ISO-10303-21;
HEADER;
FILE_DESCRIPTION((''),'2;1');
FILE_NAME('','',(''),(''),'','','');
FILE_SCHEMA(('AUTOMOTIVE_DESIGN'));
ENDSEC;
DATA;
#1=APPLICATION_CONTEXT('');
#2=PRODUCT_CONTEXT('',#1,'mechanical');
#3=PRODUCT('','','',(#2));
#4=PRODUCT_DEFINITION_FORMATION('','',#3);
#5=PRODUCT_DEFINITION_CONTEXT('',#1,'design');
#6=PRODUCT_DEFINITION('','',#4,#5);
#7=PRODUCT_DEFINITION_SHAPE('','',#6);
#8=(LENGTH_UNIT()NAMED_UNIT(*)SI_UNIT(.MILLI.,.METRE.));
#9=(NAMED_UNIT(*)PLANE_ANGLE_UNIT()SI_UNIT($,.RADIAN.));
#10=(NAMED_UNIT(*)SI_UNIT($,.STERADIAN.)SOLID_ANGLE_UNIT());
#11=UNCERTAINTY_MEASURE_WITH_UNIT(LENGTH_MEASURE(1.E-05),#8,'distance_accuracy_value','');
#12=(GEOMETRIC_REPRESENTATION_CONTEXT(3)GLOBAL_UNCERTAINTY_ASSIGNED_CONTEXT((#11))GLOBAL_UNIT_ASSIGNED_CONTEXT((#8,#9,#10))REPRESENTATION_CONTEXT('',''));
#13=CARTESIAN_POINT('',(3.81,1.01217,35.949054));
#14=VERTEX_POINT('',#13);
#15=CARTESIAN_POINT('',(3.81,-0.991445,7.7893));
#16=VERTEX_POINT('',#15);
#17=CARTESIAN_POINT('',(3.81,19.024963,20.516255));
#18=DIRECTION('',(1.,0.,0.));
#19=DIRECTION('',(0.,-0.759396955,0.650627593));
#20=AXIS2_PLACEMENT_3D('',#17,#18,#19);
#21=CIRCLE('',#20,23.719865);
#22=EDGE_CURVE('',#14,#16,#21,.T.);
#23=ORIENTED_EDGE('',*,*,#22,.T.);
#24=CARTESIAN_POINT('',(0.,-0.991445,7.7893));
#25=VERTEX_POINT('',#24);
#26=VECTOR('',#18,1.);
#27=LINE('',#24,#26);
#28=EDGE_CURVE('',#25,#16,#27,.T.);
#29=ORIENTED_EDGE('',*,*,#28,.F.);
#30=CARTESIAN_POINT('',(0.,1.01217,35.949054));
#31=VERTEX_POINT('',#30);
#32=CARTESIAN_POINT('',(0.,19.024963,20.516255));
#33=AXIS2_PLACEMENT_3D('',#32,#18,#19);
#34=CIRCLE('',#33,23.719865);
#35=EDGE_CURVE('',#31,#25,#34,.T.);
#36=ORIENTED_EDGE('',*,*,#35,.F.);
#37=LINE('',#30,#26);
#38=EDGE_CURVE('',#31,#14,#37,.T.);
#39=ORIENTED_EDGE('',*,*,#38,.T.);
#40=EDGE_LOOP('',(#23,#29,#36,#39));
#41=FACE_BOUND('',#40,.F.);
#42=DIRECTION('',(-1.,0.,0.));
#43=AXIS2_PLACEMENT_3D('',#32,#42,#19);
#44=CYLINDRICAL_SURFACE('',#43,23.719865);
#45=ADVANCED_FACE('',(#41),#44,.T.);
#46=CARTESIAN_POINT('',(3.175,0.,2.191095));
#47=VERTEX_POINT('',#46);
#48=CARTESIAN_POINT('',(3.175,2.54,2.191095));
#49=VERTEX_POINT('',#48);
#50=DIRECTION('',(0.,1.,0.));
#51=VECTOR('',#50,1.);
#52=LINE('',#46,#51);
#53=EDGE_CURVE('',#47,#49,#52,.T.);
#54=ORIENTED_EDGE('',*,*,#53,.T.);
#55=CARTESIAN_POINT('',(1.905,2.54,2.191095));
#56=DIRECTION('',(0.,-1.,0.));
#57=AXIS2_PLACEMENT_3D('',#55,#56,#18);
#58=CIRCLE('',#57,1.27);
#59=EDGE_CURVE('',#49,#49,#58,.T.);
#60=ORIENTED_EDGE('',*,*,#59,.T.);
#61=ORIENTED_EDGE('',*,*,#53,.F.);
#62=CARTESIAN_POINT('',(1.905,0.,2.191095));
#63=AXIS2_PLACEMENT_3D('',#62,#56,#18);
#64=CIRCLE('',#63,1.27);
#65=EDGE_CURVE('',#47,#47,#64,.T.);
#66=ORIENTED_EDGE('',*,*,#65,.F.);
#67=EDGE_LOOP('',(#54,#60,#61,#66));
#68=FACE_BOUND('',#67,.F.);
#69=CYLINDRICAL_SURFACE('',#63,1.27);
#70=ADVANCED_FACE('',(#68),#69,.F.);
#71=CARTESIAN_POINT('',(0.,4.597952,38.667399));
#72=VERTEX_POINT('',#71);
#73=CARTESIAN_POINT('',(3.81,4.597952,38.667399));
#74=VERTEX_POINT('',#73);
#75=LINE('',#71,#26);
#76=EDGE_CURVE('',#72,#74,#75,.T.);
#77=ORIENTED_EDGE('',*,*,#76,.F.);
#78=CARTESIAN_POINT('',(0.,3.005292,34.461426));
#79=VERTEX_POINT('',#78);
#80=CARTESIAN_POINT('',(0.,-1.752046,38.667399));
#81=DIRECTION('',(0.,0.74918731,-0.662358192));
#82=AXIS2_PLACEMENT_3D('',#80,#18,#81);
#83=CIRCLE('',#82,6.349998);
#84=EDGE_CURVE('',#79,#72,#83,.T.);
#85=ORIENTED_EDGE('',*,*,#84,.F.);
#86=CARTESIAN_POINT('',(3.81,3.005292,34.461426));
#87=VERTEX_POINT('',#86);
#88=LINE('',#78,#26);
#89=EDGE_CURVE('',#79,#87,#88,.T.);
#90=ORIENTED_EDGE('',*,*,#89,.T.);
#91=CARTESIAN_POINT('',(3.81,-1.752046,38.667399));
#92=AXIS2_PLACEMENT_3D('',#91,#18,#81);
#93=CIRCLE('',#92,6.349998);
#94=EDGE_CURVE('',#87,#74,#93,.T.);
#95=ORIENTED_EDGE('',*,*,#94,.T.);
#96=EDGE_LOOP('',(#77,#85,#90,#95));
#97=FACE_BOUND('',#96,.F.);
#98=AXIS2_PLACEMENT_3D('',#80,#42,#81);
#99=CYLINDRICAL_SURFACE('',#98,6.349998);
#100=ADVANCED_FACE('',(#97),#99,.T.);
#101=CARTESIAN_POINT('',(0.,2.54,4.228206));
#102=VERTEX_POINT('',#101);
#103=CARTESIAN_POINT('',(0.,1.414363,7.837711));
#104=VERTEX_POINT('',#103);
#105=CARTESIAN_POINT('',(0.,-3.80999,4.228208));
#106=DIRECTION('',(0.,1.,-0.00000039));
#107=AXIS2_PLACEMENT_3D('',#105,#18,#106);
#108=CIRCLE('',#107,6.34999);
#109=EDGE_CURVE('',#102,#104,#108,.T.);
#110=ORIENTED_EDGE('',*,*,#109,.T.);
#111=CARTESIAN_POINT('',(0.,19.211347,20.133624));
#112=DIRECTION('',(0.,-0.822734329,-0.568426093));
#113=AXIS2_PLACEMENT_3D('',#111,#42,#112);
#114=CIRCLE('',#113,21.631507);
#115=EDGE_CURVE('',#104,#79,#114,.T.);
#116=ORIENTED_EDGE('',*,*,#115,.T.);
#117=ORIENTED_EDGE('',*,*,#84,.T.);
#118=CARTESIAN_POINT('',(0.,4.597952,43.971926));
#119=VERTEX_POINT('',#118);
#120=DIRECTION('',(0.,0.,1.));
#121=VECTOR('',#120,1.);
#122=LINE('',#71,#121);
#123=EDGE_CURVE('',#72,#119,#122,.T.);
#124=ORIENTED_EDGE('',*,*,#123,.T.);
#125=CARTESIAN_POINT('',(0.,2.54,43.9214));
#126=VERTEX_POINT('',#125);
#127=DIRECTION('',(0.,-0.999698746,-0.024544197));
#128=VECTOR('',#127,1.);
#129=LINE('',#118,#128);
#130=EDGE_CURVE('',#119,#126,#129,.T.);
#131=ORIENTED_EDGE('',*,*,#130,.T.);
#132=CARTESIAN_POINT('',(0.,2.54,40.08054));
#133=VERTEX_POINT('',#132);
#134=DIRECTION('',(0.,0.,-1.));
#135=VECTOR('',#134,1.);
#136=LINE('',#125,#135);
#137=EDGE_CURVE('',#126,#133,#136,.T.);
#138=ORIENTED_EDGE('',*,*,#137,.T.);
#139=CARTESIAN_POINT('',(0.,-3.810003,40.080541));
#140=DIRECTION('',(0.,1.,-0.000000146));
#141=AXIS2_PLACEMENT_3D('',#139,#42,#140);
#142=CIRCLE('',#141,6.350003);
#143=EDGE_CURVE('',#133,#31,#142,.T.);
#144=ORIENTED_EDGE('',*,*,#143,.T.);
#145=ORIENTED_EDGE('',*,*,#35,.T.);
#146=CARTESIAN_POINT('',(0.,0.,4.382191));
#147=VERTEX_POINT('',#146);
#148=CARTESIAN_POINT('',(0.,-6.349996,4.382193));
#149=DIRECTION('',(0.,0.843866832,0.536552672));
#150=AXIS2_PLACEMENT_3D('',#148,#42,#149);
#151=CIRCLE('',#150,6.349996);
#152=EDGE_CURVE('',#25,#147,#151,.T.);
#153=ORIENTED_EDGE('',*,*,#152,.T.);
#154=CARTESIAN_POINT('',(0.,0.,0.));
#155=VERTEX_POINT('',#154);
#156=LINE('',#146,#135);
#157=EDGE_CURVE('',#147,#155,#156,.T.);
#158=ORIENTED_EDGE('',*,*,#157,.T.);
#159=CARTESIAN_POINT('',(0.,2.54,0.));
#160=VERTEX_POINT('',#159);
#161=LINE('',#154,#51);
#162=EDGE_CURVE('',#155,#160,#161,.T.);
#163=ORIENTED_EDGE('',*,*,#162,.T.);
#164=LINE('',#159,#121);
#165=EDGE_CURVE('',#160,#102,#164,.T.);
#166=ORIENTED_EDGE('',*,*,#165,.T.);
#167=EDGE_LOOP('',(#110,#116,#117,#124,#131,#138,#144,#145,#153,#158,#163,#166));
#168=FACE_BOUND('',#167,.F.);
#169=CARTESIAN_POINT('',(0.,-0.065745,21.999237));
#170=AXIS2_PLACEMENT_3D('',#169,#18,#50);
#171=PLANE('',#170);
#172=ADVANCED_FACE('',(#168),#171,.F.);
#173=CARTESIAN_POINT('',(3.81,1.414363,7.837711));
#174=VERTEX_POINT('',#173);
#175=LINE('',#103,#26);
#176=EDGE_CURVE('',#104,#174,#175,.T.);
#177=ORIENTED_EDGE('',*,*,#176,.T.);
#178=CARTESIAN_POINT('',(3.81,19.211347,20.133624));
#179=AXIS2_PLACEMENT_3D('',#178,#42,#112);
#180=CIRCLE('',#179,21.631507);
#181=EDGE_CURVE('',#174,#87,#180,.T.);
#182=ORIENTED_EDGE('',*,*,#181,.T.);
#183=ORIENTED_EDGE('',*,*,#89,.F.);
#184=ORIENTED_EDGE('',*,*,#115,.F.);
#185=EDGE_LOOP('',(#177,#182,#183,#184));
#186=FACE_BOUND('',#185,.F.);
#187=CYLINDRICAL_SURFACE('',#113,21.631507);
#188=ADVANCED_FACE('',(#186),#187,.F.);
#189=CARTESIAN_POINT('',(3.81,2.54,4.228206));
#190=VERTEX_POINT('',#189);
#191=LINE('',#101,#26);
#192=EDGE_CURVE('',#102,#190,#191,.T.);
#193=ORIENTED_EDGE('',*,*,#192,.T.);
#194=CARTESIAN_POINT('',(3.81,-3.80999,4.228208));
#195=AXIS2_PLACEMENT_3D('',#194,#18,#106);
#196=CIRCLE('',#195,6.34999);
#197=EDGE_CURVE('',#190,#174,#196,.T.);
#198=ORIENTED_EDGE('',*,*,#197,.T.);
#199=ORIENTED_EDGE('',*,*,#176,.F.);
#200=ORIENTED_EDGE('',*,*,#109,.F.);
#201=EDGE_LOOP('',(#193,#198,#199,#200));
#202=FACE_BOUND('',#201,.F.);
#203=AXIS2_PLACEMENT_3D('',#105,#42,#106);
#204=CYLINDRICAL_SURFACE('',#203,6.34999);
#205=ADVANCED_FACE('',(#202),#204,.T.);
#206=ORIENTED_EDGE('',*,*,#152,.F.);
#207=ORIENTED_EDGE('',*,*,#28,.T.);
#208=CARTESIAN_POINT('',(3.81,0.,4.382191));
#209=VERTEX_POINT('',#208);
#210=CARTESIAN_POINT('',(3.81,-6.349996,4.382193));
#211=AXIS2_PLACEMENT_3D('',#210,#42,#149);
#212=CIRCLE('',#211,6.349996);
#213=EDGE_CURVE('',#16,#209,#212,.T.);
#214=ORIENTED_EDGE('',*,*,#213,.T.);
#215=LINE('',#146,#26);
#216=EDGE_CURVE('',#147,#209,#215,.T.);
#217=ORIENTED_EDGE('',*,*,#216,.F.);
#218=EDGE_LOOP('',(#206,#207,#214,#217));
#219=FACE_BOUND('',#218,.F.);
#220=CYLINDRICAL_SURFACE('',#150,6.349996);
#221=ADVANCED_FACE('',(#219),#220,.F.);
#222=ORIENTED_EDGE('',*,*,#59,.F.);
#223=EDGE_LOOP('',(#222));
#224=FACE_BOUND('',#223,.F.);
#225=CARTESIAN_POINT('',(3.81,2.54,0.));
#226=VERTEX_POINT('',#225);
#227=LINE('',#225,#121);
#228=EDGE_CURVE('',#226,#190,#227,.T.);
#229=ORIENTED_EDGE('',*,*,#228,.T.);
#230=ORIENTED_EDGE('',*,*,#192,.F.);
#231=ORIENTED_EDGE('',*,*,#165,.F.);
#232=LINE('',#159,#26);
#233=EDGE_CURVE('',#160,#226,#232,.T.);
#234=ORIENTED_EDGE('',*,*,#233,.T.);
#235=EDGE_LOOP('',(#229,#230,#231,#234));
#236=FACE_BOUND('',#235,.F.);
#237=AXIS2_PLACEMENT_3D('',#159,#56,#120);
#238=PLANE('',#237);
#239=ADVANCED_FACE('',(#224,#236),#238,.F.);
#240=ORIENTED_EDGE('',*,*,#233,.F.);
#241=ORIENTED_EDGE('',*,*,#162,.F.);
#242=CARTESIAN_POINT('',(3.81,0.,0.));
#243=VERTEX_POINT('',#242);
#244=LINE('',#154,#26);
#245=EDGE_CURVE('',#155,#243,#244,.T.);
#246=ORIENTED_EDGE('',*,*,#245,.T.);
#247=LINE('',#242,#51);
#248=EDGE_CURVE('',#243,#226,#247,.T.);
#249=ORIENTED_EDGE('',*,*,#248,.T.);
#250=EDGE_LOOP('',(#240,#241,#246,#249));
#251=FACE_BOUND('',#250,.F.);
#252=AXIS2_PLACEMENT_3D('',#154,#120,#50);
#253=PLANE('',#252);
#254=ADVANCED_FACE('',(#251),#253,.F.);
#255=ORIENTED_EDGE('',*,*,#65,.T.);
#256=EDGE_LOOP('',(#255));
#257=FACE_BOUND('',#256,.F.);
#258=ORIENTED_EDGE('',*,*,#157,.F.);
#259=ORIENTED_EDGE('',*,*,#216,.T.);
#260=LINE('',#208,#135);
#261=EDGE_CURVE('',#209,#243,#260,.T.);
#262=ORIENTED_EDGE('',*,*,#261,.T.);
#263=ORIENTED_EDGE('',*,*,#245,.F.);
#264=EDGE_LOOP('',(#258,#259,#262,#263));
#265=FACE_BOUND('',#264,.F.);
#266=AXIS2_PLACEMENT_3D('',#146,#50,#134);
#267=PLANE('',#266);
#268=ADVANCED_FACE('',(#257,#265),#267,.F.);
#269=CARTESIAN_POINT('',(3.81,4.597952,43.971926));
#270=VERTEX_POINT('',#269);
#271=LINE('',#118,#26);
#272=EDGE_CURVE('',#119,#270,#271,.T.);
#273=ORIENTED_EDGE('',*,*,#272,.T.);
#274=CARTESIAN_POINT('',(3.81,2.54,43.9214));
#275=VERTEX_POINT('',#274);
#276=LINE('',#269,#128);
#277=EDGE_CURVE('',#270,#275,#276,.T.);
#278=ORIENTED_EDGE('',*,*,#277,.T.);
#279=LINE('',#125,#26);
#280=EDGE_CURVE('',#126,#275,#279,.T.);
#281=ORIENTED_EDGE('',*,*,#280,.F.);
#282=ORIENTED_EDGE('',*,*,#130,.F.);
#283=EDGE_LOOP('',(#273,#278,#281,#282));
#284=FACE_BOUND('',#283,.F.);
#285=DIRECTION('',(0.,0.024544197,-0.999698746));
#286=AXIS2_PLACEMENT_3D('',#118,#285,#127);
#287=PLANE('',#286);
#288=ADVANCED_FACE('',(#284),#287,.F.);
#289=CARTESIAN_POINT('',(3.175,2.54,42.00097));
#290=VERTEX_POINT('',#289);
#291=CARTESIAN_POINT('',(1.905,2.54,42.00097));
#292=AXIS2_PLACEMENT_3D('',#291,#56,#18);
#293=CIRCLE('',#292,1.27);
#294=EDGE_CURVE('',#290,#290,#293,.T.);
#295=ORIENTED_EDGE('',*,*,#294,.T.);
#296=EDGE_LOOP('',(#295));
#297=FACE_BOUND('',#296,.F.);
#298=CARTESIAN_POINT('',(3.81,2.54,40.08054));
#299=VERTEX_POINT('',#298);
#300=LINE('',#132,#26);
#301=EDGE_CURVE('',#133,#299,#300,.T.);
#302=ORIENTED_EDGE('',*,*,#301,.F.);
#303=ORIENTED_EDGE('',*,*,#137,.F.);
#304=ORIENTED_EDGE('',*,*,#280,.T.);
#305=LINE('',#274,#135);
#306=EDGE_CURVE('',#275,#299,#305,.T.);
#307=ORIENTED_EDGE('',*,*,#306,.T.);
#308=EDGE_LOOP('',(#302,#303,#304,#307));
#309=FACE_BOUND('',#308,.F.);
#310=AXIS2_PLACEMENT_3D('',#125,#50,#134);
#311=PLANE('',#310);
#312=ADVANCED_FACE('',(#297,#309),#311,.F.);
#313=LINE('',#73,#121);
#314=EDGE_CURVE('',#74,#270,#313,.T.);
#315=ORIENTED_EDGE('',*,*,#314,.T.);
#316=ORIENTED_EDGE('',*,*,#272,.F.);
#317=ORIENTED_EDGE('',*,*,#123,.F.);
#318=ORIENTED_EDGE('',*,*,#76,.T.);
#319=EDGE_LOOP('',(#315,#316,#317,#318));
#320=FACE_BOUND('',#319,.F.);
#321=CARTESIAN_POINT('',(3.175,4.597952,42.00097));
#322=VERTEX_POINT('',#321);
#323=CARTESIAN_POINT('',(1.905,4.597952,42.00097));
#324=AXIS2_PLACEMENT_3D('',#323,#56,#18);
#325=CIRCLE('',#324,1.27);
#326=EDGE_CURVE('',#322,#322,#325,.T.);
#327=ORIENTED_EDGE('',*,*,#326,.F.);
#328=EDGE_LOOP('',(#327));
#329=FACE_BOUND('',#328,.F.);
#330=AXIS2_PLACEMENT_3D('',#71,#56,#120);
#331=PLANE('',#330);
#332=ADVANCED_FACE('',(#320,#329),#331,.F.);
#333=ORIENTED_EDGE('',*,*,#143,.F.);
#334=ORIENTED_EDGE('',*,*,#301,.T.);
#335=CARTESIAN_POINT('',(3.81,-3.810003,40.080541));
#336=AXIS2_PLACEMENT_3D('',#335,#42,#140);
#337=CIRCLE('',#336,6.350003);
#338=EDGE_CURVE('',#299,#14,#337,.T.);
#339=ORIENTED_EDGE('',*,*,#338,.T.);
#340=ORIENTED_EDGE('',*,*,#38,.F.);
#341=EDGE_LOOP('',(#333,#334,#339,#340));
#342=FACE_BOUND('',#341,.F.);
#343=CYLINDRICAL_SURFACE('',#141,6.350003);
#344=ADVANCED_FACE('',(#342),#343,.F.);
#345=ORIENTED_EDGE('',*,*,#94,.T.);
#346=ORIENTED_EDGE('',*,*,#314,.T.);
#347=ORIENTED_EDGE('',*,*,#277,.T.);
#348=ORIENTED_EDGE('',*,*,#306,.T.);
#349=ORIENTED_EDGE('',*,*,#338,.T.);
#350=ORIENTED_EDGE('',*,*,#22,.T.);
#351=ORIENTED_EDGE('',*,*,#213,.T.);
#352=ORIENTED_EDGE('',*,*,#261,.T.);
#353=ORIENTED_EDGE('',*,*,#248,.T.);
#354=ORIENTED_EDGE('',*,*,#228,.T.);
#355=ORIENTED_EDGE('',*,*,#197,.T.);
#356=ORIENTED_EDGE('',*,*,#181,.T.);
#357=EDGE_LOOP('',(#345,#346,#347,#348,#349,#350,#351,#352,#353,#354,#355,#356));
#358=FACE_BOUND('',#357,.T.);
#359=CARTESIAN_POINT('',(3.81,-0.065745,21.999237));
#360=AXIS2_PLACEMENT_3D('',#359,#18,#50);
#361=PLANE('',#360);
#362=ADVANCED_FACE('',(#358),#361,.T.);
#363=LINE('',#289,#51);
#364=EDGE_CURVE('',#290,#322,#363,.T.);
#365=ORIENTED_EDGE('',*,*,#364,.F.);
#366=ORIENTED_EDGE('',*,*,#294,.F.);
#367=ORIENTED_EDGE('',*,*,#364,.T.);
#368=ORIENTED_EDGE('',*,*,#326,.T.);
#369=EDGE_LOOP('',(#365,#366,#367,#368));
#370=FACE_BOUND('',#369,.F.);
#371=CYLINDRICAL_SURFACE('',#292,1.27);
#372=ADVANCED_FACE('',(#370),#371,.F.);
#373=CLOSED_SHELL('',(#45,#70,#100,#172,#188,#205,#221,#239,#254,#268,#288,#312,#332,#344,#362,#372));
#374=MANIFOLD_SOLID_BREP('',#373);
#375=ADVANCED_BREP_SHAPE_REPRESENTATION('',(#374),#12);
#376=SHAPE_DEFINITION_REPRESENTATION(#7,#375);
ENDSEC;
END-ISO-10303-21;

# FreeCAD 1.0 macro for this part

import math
import FreeCAD as App
import Part
import Sketcher

V = App.Vector
Q = App.Units.Quantity

doc = App.newDocument("Part")
body = doc.addObject("PartDesign::Body", "Body")

# Sketch on YZ plane
sketch1 = body.newObject("Sketcher::SketchObject", "Sketch")
sketch1.AttachmentSupport = (doc.getObject("YZ_Plane"), [""])
sketch1.MapMode = "FlatFace"
sketch1.addGeometry([
    Part.LineSegment(V(0, 4.4, 0), V(0, 0, 0)),  # 0
    Part.LineSegment(V(0, 0, 0), V(2.5, 0, 0)),  # 1
    Part.LineSegment(V(2.5, 0, 0), V(2.5, 4.2, 0)),  # 2
    Part.ArcOfCircle(Part.Circle(V(-3.8, 4.2, 0), V(0, 0, 1), 6.3), math.radians(0), math.radians(35)),  # 3
    Part.ArcOfCircle(Part.Circle(V(19.2, 20.1, 0), V(0, 0, 1), 21.6), math.radians(139), math.radians(215)),  # 4
    Part.ArcOfCircle(Part.Circle(V(-1.8, 38.7, 0), V(0, 0, 1), 6.3), math.radians(-41), math.radians(0)),  # 5
    Part.LineSegment(V(4.6, 38.7, 0), V(4.6, 44, 0)),  # 6
    Part.LineSegment(V(4.6, 44, 0), V(2.5, 43.9, 0)),  # 7
    Part.LineSegment(V(2.5, 43.9, 0), V(2.5, 40.1, 0)),  # 8
    Part.ArcOfCircle(Part.Circle(V(-3.8, 40.1, 0), V(0, 0, 1), 6.4), math.radians(-41), math.radians(0)),  # 9
    Part.ArcOfCircle(Part.Circle(V(19, 20.5, 0), V(0, 0, 1), 23.7), math.radians(139), math.radians(212)),  # 10
    Part.ArcOfCircle(Part.Circle(V(-6.3, 4.4, 0), V(0, 0, 1), 6.3), math.radians(0), math.radians(32)),  # 11
], False)
sketch1.addConstraint([
    Sketcher.Constraint("Coincident", 0, 2, 1, 1),
    Sketcher.Constraint("Coincident", 1, 2, 2, 1),
    Sketcher.Constraint("Tangent", 2, 2, 3, 1),
    Sketcher.Constraint("Tangent", 3, 2, 4, 2),
    Sketcher.Constraint("Tangent", 4, 1, 5, 1),
    Sketcher.Constraint("Tangent", 5, 2, 6, 1),
    Sketcher.Constraint("Coincident", 6, 2, 7, 1),
    Sketcher.Constraint("Coincident", 7, 2, 8, 1),
    Sketcher.Constraint("Tangent", 8, 2, 9, 2),
    Sketcher.Constraint("Tangent", 9, 1, 10, 1),
    Sketcher.Constraint("Tangent", 10, 2, 11, 2),
    Sketcher.Constraint("Tangent", 11, 1, 0, 1),
    Sketcher.Constraint("Vertical", 0),
    Sketcher.Constraint("Horizontal", 1),
    Sketcher.Constraint("Vertical", 2),
    Sketcher.Constraint("Vertical", 6),
    Sketcher.Constraint("Vertical", 8),
    Sketcher.Constraint("Coincident", 0, 2, -1, 1),
    Sketcher.Constraint("Equal", 5, 11),
    Sketcher.Constraint("Vertical", 2, 2, 7, 2),
    Sketcher.Constraint("Radius", 5, Q("0.2499999 in")),
    Sketcher.Constraint("Radius", 9, Q("0.2500001 in")),
    Sketcher.Constraint("DistanceX", 1, 1, 1, 2, Q("0.1 in")),
    Sketcher.Constraint("Radius", 3, Q("6.34999 mm")),
    Sketcher.Constraint("Radius", 4, Q("21.631507 mm")),
    Sketcher.Constraint("Radius", 10, Q("23.719865 mm")),
    Sketcher.Constraint("DistanceY", 0, 2, 0, 1, Q("4.382191 mm")),
    Sketcher.Constraint("DistanceY", 8, 2, 8, 1, Q("3.84086 mm")),
    Sketcher.Constraint("DistanceY", -1, 1, 5, 3, Q("38.667399 mm")),
    Sketcher.Constraint("DistanceY", -1, 1, 7, 2, Q("43.9214 mm")),
    Sketcher.Constraint("DistanceY", 4, 3, 4, 1, Q("14.327802 mm")),
    Sketcher.Constraint("DistanceY", 4, 1, 6, 2, Q("9.5105 mm")),
    Sketcher.Constraint("DistanceY", 2, 1, 2, 2, Q("4.228206 mm")),
])
pad1 = body.newObject("PartDesign::Pad", "Pad")
pad1.Profile = sketch1
pad1.Length = Q("0.15 in")

# Sketch on XZ plane
sketch2 = body.newObject("Sketcher::SketchObject", "Sketch001")
sketch2.AttachmentSupport = (doc.getObject("XZ_Plane"), [""])
sketch2.MapMode = "FlatFace"
sketch2.AttachmentOffset = App.Placement(V(0, 0, -0.1 * 25.4), App.Rotation())
sketch2.addGeometry(Part.Circle(V(1.9, 42, 0), V(0, 0, 1), 1.3), False)
sketch2.addConstraint([
    Sketcher.Constraint("Diameter", 0, Q("0.1 in")),
    Sketcher.Constraint("DistanceX", -1, 1, 0, 3, Q("0.075 in")),
    Sketcher.Constraint("DistanceY", -1, 1, 0, 3, Q("42.00097 mm")),
])
pocket1 = body.newObject("PartDesign::Pocket", "Pocket")
pocket1.Profile = sketch2
pocket1.Length = Q("1 in")

# Sketch on XZ plane
sketch3 = body.newObject("Sketcher::SketchObject", "Sketch002")
sketch3.AttachmentSupport = (doc.getObject("XZ_Plane"), [""])
sketch3.MapMode = "FlatFace"
sketch3.addGeometry(Part.Circle(V(1.9, 2.2, 0), V(0, 0, 1), 1.3), False)
sketch3.addConstraint([
    Sketcher.Constraint("Diameter", 0, Q("0.1 in")),
    Sketcher.Constraint("DistanceX", -1, 1, 0, 3, Q("0.075 in")),
    Sketcher.Constraint("DistanceY", -1, 1, 0, 3, Q("2.191095 mm")),
])
pocket2 = body.newObject("PartDesign::Pocket", "Pocket001")
pocket2.Profile = sketch3
pocket2.Length = Q("0.374 in")

doc.recompute()
